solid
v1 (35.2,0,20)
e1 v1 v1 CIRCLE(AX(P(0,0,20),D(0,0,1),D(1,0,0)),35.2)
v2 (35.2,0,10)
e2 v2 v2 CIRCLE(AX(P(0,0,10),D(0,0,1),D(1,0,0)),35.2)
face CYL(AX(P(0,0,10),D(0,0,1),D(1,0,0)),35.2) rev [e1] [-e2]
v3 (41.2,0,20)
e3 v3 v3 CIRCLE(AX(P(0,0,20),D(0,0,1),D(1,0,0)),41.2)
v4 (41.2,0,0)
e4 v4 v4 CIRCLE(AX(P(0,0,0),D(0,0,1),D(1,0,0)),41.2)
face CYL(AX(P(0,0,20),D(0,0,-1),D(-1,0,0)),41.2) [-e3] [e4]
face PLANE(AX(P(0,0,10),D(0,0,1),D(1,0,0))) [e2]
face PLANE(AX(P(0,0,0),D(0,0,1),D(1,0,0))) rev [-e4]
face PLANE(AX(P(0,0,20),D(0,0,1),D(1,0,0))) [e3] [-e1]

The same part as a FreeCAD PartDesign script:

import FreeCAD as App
import Part
import Sketcher
Q = App.Units.Quantity

doc = App.newDocument("Part")
params = doc.addObject("Spreadsheet::Sheet", "Params")
for row, (alias, value) in enumerate([
    ("sketch1_diameter", "82.4 mm"),
    ("pad1_length", "20 mm"),
    ("sketch2_diameter", "70.4 mm"),
    ("pocket1_length", "10 mm"),
], start=1):
    params.set(f"A{row}", alias)
    params.set(f"B{row}", "=" + value)
    params.setAlias(f"B{row}", alias)

body = doc.addObject("PartDesign::Body", "Body")

# Sketch on XY plane
sketch1 = body.newObject("Sketcher::SketchObject", "Sketch")
sketch1.AttachmentSupport = (doc.getObject("XY_Plane"), [""])
sketch1.MapMode = "FlatFace"
sketch1.addGeometry(Part.Circle(App.Vector(0, 0, 0), App.Vector(0, 0, 1), 41), False)
sketch1.addConstraint(Sketcher.Constraint("Coincident", 0, 3, -1, 1))
sketch1.addConstraint(Sketcher.Constraint("Diameter", 0, Q("82.4 mm")))
sketch1.setExpression("Constraints[1]", "Params.sketch1_diameter")
pad1 = body.newObject("PartDesign::Pad", "Pad")
pad1.Profile = sketch1
pad1.setExpression("Length", "Params.pad1_length")

# Sketch on XY plane
sketch2 = body.newObject("Sketcher::SketchObject", "Sketch001")
sketch2.AttachmentSupport = (doc.getObject("XY_Plane"), [""])
sketch2.MapMode = "FlatFace"
sketch2.AttachmentOffset = App.Placement(App.Vector(0, 0, 20), App.Rotation())
sketch2.addGeometry(Part.Circle(App.Vector(0, 0, 0), App.Vector(0, 0, 1), 35), False)
sketch2.addConstraint(Sketcher.Constraint("Coincident", 0, 3, -1, 1))
sketch2.addConstraint(Sketcher.Constraint("Diameter", 0, Q("70.4 mm")))
sketch2.setExpression("Constraints[1]", "Params.sketch2_diameter")
pocket1 = body.newObject("PartDesign::Pocket", "Pocket")
pocket1.Profile = sketch2
pocket1.setExpression("Length", "Params.pocket1_length")

doc.recompute()
